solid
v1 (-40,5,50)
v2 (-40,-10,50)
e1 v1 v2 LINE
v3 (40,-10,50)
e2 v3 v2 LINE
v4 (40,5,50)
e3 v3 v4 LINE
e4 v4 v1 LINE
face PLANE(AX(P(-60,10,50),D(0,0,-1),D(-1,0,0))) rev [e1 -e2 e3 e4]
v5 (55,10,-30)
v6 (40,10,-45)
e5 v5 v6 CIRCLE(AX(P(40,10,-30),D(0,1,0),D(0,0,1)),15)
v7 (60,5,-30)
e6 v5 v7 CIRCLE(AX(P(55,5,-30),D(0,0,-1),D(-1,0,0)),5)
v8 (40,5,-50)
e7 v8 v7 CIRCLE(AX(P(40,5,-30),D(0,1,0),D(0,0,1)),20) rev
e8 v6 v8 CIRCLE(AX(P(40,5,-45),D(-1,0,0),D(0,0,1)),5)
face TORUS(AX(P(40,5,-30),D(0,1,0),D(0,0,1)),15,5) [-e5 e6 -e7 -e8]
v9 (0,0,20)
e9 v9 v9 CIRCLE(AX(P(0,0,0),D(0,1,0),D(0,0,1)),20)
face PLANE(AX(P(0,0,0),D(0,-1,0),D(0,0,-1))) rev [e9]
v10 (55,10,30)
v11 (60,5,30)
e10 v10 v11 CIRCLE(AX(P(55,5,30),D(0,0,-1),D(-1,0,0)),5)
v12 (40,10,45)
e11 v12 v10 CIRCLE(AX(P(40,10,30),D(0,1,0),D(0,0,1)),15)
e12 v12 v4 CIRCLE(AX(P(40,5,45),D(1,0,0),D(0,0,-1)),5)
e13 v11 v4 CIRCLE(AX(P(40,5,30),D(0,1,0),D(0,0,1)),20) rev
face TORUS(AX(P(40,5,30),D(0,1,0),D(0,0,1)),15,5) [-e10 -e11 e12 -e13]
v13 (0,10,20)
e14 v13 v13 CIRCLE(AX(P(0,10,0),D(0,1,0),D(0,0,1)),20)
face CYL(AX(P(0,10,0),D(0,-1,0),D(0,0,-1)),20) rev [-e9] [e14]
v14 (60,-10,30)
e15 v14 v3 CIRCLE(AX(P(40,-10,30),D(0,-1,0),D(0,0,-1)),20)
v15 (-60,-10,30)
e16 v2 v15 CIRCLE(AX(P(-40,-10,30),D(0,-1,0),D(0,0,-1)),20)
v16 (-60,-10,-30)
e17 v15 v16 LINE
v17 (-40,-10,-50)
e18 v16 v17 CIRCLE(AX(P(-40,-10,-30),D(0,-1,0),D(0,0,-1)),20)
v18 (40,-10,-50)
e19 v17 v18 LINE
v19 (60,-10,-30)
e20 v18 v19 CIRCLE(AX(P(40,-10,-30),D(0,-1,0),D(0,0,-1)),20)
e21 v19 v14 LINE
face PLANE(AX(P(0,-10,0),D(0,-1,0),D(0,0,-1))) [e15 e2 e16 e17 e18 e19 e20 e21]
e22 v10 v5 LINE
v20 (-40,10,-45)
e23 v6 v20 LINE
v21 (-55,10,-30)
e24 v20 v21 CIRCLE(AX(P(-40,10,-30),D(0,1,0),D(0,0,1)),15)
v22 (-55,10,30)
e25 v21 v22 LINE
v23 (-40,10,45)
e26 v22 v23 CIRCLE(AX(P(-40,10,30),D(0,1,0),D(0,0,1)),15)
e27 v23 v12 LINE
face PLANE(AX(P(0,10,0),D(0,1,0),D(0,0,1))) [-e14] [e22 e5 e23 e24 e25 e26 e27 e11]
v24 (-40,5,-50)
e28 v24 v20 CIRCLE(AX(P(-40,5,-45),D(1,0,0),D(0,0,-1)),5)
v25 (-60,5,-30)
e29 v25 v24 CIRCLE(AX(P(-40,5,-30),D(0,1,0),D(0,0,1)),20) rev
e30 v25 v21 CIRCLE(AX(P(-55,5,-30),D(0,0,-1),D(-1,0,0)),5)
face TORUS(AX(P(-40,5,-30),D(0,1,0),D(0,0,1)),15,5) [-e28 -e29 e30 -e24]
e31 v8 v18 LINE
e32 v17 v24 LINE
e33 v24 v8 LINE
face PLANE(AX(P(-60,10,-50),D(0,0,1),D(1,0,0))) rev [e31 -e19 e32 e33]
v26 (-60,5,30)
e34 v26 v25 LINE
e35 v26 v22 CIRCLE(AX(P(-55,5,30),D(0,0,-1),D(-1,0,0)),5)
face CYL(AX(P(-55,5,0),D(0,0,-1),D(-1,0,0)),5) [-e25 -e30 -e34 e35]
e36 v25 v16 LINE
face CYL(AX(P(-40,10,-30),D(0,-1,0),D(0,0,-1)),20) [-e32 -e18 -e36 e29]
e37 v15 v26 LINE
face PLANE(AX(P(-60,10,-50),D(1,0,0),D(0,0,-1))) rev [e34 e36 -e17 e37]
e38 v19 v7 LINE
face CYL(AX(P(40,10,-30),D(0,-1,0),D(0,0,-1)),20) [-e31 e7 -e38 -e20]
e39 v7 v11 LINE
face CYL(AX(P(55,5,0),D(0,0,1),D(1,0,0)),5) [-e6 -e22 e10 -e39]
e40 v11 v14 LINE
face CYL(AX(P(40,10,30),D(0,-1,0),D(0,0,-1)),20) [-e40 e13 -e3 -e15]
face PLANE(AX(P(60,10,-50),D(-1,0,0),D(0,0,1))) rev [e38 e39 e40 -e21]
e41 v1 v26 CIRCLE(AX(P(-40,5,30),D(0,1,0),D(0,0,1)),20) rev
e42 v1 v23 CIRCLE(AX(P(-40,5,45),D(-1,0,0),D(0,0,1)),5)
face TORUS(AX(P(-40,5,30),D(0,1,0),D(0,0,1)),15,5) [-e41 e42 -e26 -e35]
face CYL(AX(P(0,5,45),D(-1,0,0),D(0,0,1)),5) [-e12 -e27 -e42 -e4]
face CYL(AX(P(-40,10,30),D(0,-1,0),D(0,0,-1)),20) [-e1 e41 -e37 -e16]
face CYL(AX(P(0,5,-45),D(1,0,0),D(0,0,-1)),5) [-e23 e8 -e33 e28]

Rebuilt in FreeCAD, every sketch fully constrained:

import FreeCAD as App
import Part
import Sketcher

V = App.Vector


def edges_at(feature, points):
    """Names of the edges that pass closest to the given points."""
    edges = feature.Shape.Edges
    near = lambda p: min(range(len(edges)), key=lambda i: edges[i].distToShape(Part.Vertex(*p))[0])
    return sorted({f"Edge{near(p) + 1}" for p in points})

doc = App.newDocument("Part")
body = doc.addObject("PartDesign::Body", "Body")

sketch1 = body.newObject("Sketcher::SketchObject", "Sketch")
sketch1.AttachmentSupport = (doc.getObject("XZ_Plane"), [""])
sketch1.MapMode = "FlatFace"
sketch1.addGeometry(Part.LineSegment(V(-60, -50, 0), V(-60, 50, 0)), False)
sketch1.addGeometry(Part.LineSegment(V(-60, 50, 0), V(60, 50, 0)), False)
sketch1.addGeometry(Part.LineSegment(V(60, 50, 0), V(60, -50, 0)), False)
sketch1.addGeometry(Part.LineSegment(V(60, -50, 0), V(-60, -50, 0)), False)
sketch1.addGeometry(Part.Circle(V(0, 0, 0), V(0, 0, 1), 20), False)
sketch1.addConstraint(Sketcher.Constraint("Coincident", 0, 2, 1, 1))
sketch1.addConstraint(Sketcher.Constraint("Coincident", 1, 2, 2, 1))
sketch1.addConstraint(Sketcher.Constraint("Coincident", 2, 2, 3, 1))
sketch1.addConstraint(Sketcher.Constraint("Coincident", 3, 2, 0, 1))
sketch1.addConstraint(Sketcher.Constraint("Vertical", 0))
sketch1.addConstraint(Sketcher.Constraint("Horizontal", 1))
sketch1.addConstraint(Sketcher.Constraint("Vertical", 2))
sketch1.addConstraint(Sketcher.Constraint("Horizontal", 3))
sketch1.addConstraint(Sketcher.Constraint("Coincident", 4, 3, -1, 1))
sketch1.addConstraint(Sketcher.Constraint("Symmetric", 0, 2, 2, 2, -1, 1))
sketch1.addConstraint(Sketcher.Constraint("Diameter", 4, 40.0))
sketch1.addConstraint(Sketcher.Constraint("DistanceX", 1, 1, 1, 2, 120.0))
sketch1.addConstraint(Sketcher.Constraint("DistanceY", 0, 1, 0, 2, 100.0))
pad1 = body.newObject("PartDesign::Pad", "Pad")
pad1.Profile = sketch1
pad1.Length = 10
pad1.Reversed = True

sketch2 = body.newObject("Sketcher::SketchObject", "Sketch001")
sketch2.AttachmentSupport = (doc.getObject("XZ_Plane"), [""])
sketch2.MapMode = "FlatFace"
sketch2.addGeometry(Part.LineSegment(V(-60, 50, 0), V(-60, -50, 0)), False)
sketch2.addGeometry(Part.LineSegment(V(-60, -50, 0), V(60, -50, 0)), False)
sketch2.addGeometry(Part.LineSegment(V(60, -50, 0), V(60, 50, 0)), False)
sketch2.addGeometry(Part.LineSegment(V(60, 50, 0), V(-60, 50, 0)), False)
sketch2.addConstraint(Sketcher.Constraint("Coincident", 0, 2, 1, 1))
sketch2.addConstraint(Sketcher.Constraint("Coincident", 1, 2, 2, 1))
sketch2.addConstraint(Sketcher.Constraint("Coincident", 2, 2, 3, 1))
sketch2.addConstraint(Sketcher.Constraint("Coincident", 3, 2, 0, 1))
sketch2.addConstraint(Sketcher.Constraint("Vertical", 0))
sketch2.addConstraint(Sketcher.Constraint("Horizontal", 1))
sketch2.addConstraint(Sketcher.Constraint("Vertical", 2))
sketch2.addConstraint(Sketcher.Constraint("Horizontal", 3))
sketch2.addConstraint(Sketcher.Constraint("Symmetric", 0, 2, 2, 2, -1, 1))
sketch2.addConstraint(Sketcher.Constraint("DistanceX", 1, 1, 1, 2, 120.0))
sketch2.addConstraint(Sketcher.Constraint("DistanceY", 0, 2, 0, 1, 100.0))
pad2 = body.newObject("PartDesign::Pad", "Pad001")
pad2.Profile = sketch2
pad2.Length = 10
doc.recompute()

fillet = body.newObject("PartDesign::Fillet", "Fillet")
fillet.Base = (pad2, edges_at(pad2, [
    (60, 0, 50),
    (-60, 0, 50),
    (-60, 0, -50),
    (60, 0, -50),
]))
fillet.Radius = 20
doc.recompute()

fillet2 = body.newObject("PartDesign::Fillet", "Fillet001")
fillet2.Base = (fillet, edges_at(fillet, [
    (-60, 10, 0),
    (0, 10, -50),
    (60, 10, 0),
    (0, 10, 50),
    (54.142, 10, 44.142),
    (54.142, 10, -44.142),
    (-54.142, 10, 44.142),
    (-54.142, 10, -44.142),
]))
fillet2.Radius = 5

doc.recompute()
